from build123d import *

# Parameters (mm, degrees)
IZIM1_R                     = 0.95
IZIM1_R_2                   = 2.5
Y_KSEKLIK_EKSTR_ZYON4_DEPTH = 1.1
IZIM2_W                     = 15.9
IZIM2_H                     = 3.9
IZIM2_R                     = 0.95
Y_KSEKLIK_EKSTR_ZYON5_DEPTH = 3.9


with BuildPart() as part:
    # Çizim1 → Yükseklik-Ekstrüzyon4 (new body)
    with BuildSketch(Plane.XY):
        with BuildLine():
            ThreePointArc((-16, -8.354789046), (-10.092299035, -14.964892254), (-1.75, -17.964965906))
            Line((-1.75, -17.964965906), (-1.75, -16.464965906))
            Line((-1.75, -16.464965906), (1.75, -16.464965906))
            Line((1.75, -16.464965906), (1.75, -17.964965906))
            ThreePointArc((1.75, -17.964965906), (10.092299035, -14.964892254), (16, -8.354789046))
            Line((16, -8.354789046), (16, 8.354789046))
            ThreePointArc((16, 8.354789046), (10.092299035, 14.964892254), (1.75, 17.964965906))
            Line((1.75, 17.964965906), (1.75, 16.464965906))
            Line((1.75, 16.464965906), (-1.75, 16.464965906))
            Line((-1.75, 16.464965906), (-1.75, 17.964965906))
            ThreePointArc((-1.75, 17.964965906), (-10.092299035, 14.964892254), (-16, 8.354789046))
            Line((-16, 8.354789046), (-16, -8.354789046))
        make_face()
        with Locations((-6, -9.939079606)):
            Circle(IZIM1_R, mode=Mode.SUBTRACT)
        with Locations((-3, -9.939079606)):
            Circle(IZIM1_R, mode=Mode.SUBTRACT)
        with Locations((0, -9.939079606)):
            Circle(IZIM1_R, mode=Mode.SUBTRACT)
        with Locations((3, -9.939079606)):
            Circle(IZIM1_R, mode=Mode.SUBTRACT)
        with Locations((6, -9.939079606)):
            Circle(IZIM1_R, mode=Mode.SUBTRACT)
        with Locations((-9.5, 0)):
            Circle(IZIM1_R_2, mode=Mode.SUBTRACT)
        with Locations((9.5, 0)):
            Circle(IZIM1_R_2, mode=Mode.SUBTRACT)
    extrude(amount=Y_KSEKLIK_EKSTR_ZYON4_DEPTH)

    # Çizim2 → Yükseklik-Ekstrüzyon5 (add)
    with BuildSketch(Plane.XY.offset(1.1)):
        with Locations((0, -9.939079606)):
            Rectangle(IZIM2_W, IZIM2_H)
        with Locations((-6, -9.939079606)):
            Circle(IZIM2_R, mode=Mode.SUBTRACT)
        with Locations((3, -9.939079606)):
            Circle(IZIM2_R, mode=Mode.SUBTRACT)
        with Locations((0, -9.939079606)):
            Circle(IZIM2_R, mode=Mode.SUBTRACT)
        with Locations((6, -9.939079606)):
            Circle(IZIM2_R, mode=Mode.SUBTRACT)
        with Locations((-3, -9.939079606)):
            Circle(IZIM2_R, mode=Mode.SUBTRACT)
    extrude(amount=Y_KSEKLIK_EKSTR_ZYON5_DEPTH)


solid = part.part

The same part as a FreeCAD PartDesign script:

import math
import FreeCAD as App
import Part
import Sketcher

V = App.Vector
Q = App.Units.Quantity

doc = App.newDocument("Part")
body = doc.addObject("PartDesign::Body", "Body")

sketch1 = body.newObject("Sketcher::SketchObject", "Sketch")
sketch1.AttachmentSupport = (doc.getObject("XY_Plane"), [""])
sketch1.MapMode = "FlatFace"
sketch1.addGeometry([
    Part.ArcOfCircle(Part.Circle(V(0, 0, 0), V(0, 0, 1), 18.05), math.radians(-152.427593), math.radians(-95.563732)),
    Part.LineSegment(V(-1.75, -17.964966, 0), V(-1.75, -16.464966, 0)),
    Part.LineSegment(V(-1.75, -16.464966, 0), V(1.75, -16.464966, 0)),
    Part.LineSegment(V(1.75, -16.464966, 0), V(1.75, -17.964966, 0)),
    Part.ArcOfCircle(Part.Circle(V(0, 0, 0), V(0, 0, 1), 18.05), math.radians(-84.436268), math.radians(-27.572407)),
    Part.LineSegment(V(16, -8.354789, 0), V(16, 8.354789, 0)),
    Part.ArcOfCircle(Part.Circle(V(0, 0, 0), V(0, 0, 1), 18.05), math.radians(27.572407), math.radians(84.436268)),
    Part.LineSegment(V(1.75, 17.964966, 0), V(1.75, 16.464966, 0)),
    Part.LineSegment(V(1.75, 16.464966, 0), V(-1.75, 16.464966, 0)),
    Part.LineSegment(V(-1.75, 16.464966, 0), V(-1.75, 17.964966, 0)),
    Part.ArcOfCircle(Part.Circle(V(0, 0, 0), V(0, 0, 1), 18.05), math.radians(95.563732), math.radians(152.427593)),
    Part.LineSegment(V(-16, 8.354789, 0), V(-16, -8.354789, 0)),
    Part.Circle(V(-6, -9.93908, 0), V(0, 0, 1), 0.95),
    Part.Circle(V(-3, -9.93908, 0), V(0, 0, 1), 0.95),
    Part.Circle(V(0, -9.93908, 0), V(0, 0, 1), 0.95),
    Part.Circle(V(3, -9.93908, 0), V(0, 0, 1), 0.95),
    Part.Circle(V(6, -9.93908, 0), V(0, 0, 1), 0.95),
    Part.Circle(V(-9.5, 0, 0), V(0, 0, 1), 2.5),
    Part.Circle(V(9.5, 0, 0), V(0, 0, 1), 2.5),
], False)
sketch1.addConstraint([
    Sketcher.Constraint("Coincident", 0, 2, 1, 1),
    Sketcher.Constraint("Coincident", 1, 2, 2, 1),
    Sketcher.Constraint("Coincident", 2, 2, 3, 1),
    Sketcher.Constraint("Coincident", 3, 2, 4, 1),
    Sketcher.Constraint("Coincident", 4, 2, 5, 1),
    Sketcher.Constraint("Coincident", 5, 2, 6, 1),
    Sketcher.Constraint("Coincident", 6, 2, 7, 1),
    Sketcher.Constraint("Coincident", 7, 2, 8, 1),
    Sketcher.Constraint("Coincident", 8, 2, 9, 1),
    Sketcher.Constraint("Coincident", 9, 2, 10, 1),
    Sketcher.Constraint("Coincident", 10, 2, 11, 1),
    Sketcher.Constraint("Coincident", 11, 2, 0, 1),
    Sketcher.Constraint("Vertical", 1),
    Sketcher.Constraint("Horizontal", 2),
    Sketcher.Constraint("Vertical", 3),
    Sketcher.Constraint("Vertical", 5),
    Sketcher.Constraint("Vertical", 7),
    Sketcher.Constraint("Horizontal", 8),
    Sketcher.Constraint("Vertical", 9),
    Sketcher.Constraint("Vertical", 11),
    Sketcher.Constraint("Coincident", 0, 3, -1, 1),
    Sketcher.Constraint("Coincident", 4, 3, -1, 1),
    Sketcher.Constraint("Coincident", 6, 3, -1, 1),
    Sketcher.Constraint("Coincident", 10, 3, -1, 1),
    Sketcher.Constraint("Equal", 0, 4),
    Sketcher.Constraint("Equal", 4, 6),
    Sketcher.Constraint("Equal", 6, 10),
    Sketcher.Constraint("Equal", 12, 13),
    Sketcher.Constraint("Equal", 13, 14),
    Sketcher.Constraint("Equal", 14, 15),
    Sketcher.Constraint("Equal", 15, 16),
    Sketcher.Constraint("Equal", 17, 18),
    Sketcher.Constraint("Symmetric", 17, 3, 18, 3, -1, 1),
    Sketcher.Constraint("Symmetric", 1, 2, 7, 2, -1, 1),
    Sketcher.Constraint("Symmetric", 13, 3, 15, 3, -2),
    Sketcher.Constraint("Symmetric", 12, 3, 16, 3, -2),
    Sketcher.Constraint("PointOnObject", 14, 3, -2),
    Sketcher.Constraint("PointOnObject", 17, 3, -1),
    Sketcher.Constraint("Horizontal", 12, 3, 13, 3),
    Sketcher.Constraint("Horizontal", 13, 3, 14, 3),
    Sketcher.Constraint("Horizontal", 0, 2, 3, 2),
    Sketcher.Constraint("Horizontal", 6, 2, 9, 2),
    Sketcher.Constraint("Horizontal", 5, 2, 10, 2),
    Sketcher.Constraint("Diameter", 17, Q("5 mm")),
    Sketcher.Constraint("Diameter", 12, Q("1.9 mm")),
    Sketcher.Constraint("Radius", 0, Q("18.05 mm")),
    Sketcher.Constraint("DistanceX", 2, 1, 2, 2, Q("3.5 mm")),
    Sketcher.Constraint("DistanceY", 1, 1, 1, 2, Q("1.5 mm")),
    Sketcher.Constraint("DistanceX", 12, 3, -1, 1, Q("6 mm")),
    Sketcher.Constraint("DistanceX", 13, 3, -1, 1, Q("3 mm")),
    Sketcher.Constraint("DistanceX", -1, 1, 4, 2, Q("16 mm")),
    Sketcher.Constraint("DistanceX", 17, 3, -1, 1, Q("9.5 mm")),
    Sketcher.Constraint("DistanceY", 12, 3, -1, 1, Q("9.93908 mm")),
])
pad1 = body.newObject("PartDesign::Pad", "Pad")
pad1.Profile = sketch1
pad1.Length = 1.1

sketch2 = body.newObject("Sketcher::SketchObject", "Sketch001")
sketch2.AttachmentSupport = (doc.getObject("XY_Plane"), [""])
sketch2.MapMode = "FlatFace"
sketch2.AttachmentOffset = App.Placement(V(0, 0, 1.1), App.Rotation())
sketch2.addGeometry([
    Part.LineSegment(V(-7.95, -7.98908, 0), V(-7.95, -11.88908, 0)),
    Part.LineSegment(V(-7.95, -11.88908, 0), V(7.95, -11.88908, 0)),
    Part.LineSegment(V(7.95, -11.88908, 0), V(7.95, -7.98908, 0)),
    Part.LineSegment(V(7.95, -7.98908, 0), V(-7.95, -7.98908, 0)),
    Part.Circle(V(-6, -9.93908, 0), V(0, 0, 1), 0.95),
    Part.Circle(V(-3, -9.93908, 0), V(0, 0, 1), 0.95),
    Part.Circle(V(0, -9.93908, 0), V(0, 0, 1), 0.95),
    Part.Circle(V(3, -9.93908, 0), V(0, 0, 1), 0.95),
    Part.Circle(V(6, -9.93908, 0), V(0, 0, 1), 0.95),
], False)
sketch2.addConstraint([
    Sketcher.Constraint("Coincident", 0, 2, 1, 1),
    Sketcher.Constraint("Coincident", 1, 2, 2, 1),
    Sketcher.Constraint("Coincident", 2, 2, 3, 1),
    Sketcher.Constraint("Coincident", 3, 2, 0, 1),
    Sketcher.Constraint("Vertical", 0),
    Sketcher.Constraint("Horizontal", 1),
    Sketcher.Constraint("Vertical", 2),
    Sketcher.Constraint("Horizontal", 3),
    Sketcher.Constraint("Equal", 4, 5),
    Sketcher.Constraint("Equal", 5, 6),
    Sketcher.Constraint("Equal", 6, 7),
    Sketcher.Constraint("Equal", 7, 8),
    Sketcher.Constraint("Symmetric", 5, 3, 7, 3, -2),
    Sketcher.Constraint("Symmetric", 4, 3, 8, 3, -2),
    Sketcher.Constraint("PointOnObject", 6, 3, -2),
    Sketcher.Constraint("Horizontal", 4, 3, 5, 3),
    Sketcher.Constraint("Horizontal", 5, 3, 6, 3),
    Sketcher.Constraint("Diameter", 4, Q("1.9 mm")),
    Sketcher.Constraint("DistanceX", 1, 1, 1, 2, Q("15.9 mm")),
    Sketcher.Constraint("DistanceY", 0, 2, 0, 1, Q("3.9 mm")),
    Sketcher.Constraint("DistanceX", 4, 3, -1, 1, Q("6 mm")),
    Sketcher.Constraint("DistanceX", 5, 3, -1, 1, Q("3 mm")),
    Sketcher.Constraint("DistanceX", 0, 2, -1, 1, Q("7.95 mm")),
    Sketcher.Constraint("DistanceY", 0, 2, 4, 3, Q("1.95 mm")),
    Sketcher.Constraint("DistanceY", 4, 3, -1, 1, Q("9.93908 mm")),
])
pad2 = body.newObject("PartDesign::Pad", "Pad001")
pad2.Profile = sketch2
pad2.Length = 3.9

doc.recompute()
